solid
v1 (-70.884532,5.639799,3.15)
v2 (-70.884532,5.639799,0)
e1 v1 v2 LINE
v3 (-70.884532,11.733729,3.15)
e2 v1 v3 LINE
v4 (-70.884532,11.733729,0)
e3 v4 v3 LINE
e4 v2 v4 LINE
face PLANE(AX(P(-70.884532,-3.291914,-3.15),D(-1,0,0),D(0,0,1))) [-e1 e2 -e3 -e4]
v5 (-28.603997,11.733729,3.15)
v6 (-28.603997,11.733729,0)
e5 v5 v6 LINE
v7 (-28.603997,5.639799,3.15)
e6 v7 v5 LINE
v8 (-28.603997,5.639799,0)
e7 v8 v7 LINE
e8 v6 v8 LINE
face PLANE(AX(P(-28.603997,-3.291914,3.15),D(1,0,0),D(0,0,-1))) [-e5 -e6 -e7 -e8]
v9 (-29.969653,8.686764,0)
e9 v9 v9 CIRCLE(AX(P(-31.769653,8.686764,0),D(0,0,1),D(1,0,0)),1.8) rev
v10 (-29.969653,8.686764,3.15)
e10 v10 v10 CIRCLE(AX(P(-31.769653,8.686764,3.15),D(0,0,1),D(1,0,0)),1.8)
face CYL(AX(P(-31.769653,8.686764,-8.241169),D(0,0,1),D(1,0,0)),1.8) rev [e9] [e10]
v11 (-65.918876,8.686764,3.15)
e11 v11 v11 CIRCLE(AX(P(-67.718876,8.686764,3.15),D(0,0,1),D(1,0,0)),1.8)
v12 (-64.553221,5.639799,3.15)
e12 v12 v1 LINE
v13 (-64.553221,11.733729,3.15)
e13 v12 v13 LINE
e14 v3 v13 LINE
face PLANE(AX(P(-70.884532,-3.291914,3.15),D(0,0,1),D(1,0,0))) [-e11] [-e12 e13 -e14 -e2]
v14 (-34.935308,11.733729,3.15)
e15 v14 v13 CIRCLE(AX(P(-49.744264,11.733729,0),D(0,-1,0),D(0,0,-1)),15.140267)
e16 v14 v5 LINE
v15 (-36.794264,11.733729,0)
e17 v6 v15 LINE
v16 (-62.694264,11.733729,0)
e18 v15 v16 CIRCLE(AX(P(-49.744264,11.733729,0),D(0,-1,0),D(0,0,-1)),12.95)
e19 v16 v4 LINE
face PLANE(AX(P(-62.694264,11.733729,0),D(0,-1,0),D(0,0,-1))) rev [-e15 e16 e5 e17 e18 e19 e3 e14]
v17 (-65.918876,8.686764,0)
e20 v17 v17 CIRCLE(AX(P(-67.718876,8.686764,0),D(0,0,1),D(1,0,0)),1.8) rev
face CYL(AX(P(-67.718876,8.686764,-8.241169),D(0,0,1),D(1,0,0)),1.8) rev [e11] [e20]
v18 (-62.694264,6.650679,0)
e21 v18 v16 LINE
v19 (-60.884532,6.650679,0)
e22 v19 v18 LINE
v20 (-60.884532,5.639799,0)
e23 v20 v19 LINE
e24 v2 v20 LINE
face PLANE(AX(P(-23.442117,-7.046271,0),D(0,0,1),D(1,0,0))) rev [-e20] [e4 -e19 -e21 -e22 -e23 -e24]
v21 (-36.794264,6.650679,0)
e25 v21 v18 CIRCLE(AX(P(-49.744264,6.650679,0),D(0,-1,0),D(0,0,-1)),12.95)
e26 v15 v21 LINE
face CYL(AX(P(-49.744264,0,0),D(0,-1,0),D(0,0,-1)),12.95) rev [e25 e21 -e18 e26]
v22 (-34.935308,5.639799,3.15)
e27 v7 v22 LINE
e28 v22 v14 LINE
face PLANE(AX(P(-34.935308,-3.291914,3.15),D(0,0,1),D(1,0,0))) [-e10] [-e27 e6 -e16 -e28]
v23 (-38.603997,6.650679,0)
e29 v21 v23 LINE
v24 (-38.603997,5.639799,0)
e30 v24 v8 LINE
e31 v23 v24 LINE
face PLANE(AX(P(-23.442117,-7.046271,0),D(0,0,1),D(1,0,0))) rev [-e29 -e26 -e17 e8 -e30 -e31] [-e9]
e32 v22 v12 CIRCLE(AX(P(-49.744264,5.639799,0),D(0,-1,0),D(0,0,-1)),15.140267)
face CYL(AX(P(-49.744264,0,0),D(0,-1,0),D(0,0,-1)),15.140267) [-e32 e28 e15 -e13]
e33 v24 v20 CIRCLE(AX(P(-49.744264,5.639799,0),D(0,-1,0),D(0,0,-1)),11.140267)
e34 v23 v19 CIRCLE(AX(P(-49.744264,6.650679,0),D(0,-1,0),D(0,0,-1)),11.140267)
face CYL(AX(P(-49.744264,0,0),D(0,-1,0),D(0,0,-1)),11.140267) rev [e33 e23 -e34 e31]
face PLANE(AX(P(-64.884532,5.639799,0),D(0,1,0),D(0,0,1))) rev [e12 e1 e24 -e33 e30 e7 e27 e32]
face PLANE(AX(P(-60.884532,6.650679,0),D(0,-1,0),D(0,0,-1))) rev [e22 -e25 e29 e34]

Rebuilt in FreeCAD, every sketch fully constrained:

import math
import FreeCAD as App
import Part
import Sketcher

doc = App.newDocument("Part")
body = doc.addObject("PartDesign::Body", "Body")
body.AllowCompound = True

sketch1 = doc.addObject("Sketcher::SketchObject", "Sketch")
body.addObject(sketch1)
sketch1.AttachmentSupport = (doc.XY_Plane, [""])
sketch1.MapMode = "FlatFace"
sketch1.addGeometry([
    Part.LineSegment(App.Vector(-62.7, 11.7, 0), App.Vector(-64.9, 11.7, 0)),
    Part.LineSegment(App.Vector(-64.9, 11.7, 0), App.Vector(-64.9, 5.6, 0)),
    Part.LineSegment(App.Vector(-64.9, 5.6, 0), App.Vector(-60.9, 5.6, 0)),
    Part.LineSegment(App.Vector(-60.9, 5.6, 0), App.Vector(-60.9, 6.7, 0)),
    Part.LineSegment(App.Vector(-60.9, 6.7, 0), App.Vector(-62.7, 6.7, 0)),
    Part.LineSegment(App.Vector(-62.7, 6.7, 0), App.Vector(-62.7, 11.7, 0)),
], False)
sketch1.addGeometry(Part.LineSegment(App.Vector(-49.7, 5.6, 0), App.Vector(-49.7, 11.7, 0)), True)
sketch1.addConstraint([
    Sketcher.Constraint("Coincident", 0, 2, 1, 1),
    Sketcher.Constraint("Coincident", 1, 2, 2, 1),
    Sketcher.Constraint("Coincident", 2, 2, 3, 1),
    Sketcher.Constraint("Coincident", 3, 2, 4, 1),
    Sketcher.Constraint("Coincident", 4, 2, 5, 1),
    Sketcher.Constraint("Coincident", 5, 2, 0, 1),
    Sketcher.Constraint("Horizontal", 0),
    Sketcher.Constraint("Vertical", 1),
    Sketcher.Constraint("Horizontal", 2),
    Sketcher.Constraint("Vertical", 3),
    Sketcher.Constraint("Horizontal", 4),
    Sketcher.Constraint("Vertical", 5),
    Sketcher.Constraint("Vertical", 6),
    Sketcher.Constraint("Horizontal", 2, 2, 6, 1),
    Sketcher.Constraint("Horizontal", 5, 2, 6, 2),
    Sketcher.Constraint("DistanceX", 2, 1, 2, 2, 4.0),
    Sketcher.Constraint("DistanceX", 4, 2, 6, 1, 12.95),
    Sketcher.Constraint("DistanceY", 1, 2, 1, 1, 6.09393),
    Sketcher.Constraint("DistanceY", 3, 1, 3, 2, 1.01088),
    Sketcher.Constraint("DistanceY", -1, 1, 1, 2, 5.639799),
    Sketcher.Constraint("DistanceX", 0, 2, 0, 1, 2.190267),
    Sketcher.Constraint("DistanceX", 0, 2, -1, 1, 64.884532),
])
revolution = doc.addObject("PartDesign::Revolution", "Revolution")
body.addObject(revolution)
revolution.Profile = sketch1
revolution.ReferenceAxis = (sketch1, ["Axis0"])
revolution.Angle = 360

sketch2 = doc.addObject("Sketcher::SketchObject", "Sketch001")
body.addObject(sketch2)
sketch2.AttachmentSupport = (doc.XZ_Plane, [""])
sketch2.MapMode = "FlatFace"
sketch2.AttachmentOffset = App.Placement(App.Vector(0, 0, -11.733729), App.Rotation())
sketch2.addGeometry([
    Part.LineSegment(App.Vector(-50.2, -15.1, 0), App.Vector(-50.2, -12.9, 0)),
    Part.ArcOfCircle(Part.Circle(App.Vector(-49.7, 0, 0), App.Vector(0, 0, 1), 12.9), math.radians(-92.21), math.radians(-87.79)),
    Part.LineSegment(App.Vector(-49.2, -12.9, 0), App.Vector(-49.2, -15.1, 0)),
    Part.ArcOfCircle(Part.Circle(App.Vector(-49.7, 0, 0), App.Vector(0, 0, 1), 15.1), math.radians(-91.89), math.radians(-88.11)),
], False)
sketch2.addConstraint([
    Sketcher.Constraint("Coincident", 0, 2, 1, 1),
    Sketcher.Constraint("Coincident", 1, 2, 2, 1),
    Sketcher.Constraint("Coincident", 2, 2, 3, 2),
    Sketcher.Constraint("Coincident", 3, 1, 0, 1),
    Sketcher.Constraint("Vertical", 0),
    Sketcher.Constraint("Vertical", 2),
    Sketcher.Constraint("Coincident", 3, 3, 1, 3),
    Sketcher.Constraint("PointOnObject", 1, 3, -1),
    Sketcher.Constraint("Horizontal", 0, 2, 1, 2),
    Sketcher.Constraint("Radius", 1, 12.95),
    Sketcher.Constraint("DistanceX", 0, 2, 1, 2, 1.0),
    Sketcher.Constraint("Radius", 3, 15.140268),
    Sketcher.Constraint("DistanceX", 1, 3, -1, 1, 49.744264),
])
pad1 = doc.addObject("PartDesign::Pad", "Pad")
body.addObject(pad1)
pad1.Profile = sketch2
pad1.Length = 5
pad1.Reversed = True

sketch3 = doc.addObject("Sketcher::SketchObject", "Sketch002")
body.addObject(sketch3)
sketch3.AttachmentSupport = (doc.XZ_Plane, [""])
sketch3.MapMode = "FlatFace"
sketch3.AttachmentOffset = App.Placement(App.Vector(0, 0, -16.733729), App.Rotation())
sketch3.addGeometry([
    Part.LineSegment(App.Vector(-50.2, -15.1, 0), App.Vector(-50.2, 4.6, 0)),
    Part.LineSegment(App.Vector(-50.2, 4.6, 0), App.Vector(-49.2, 4.6, 0)),
    Part.LineSegment(App.Vector(-49.2, 4.6, 0), App.Vector(-49.2, -15.1, 0)),
    Part.ArcOfCircle(Part.Circle(App.Vector(-49.7, 0, 0), App.Vector(0, 0, 1), 15.1), math.radians(-91.89), math.radians(-88.11)),
], False)
sketch3.addConstraint([
    Sketcher.Constraint("Coincident", 0, 2, 1, 1),
    Sketcher.Constraint("Coincident", 1, 2, 2, 1),
    Sketcher.Constraint("Coincident", 2, 2, 3, 2),
    Sketcher.Constraint("Coincident", 3, 1, 0, 1),
    Sketcher.Constraint("Vertical", 0),
    Sketcher.Constraint("Horizontal", 1),
    Sketcher.Constraint("Vertical", 2),
    Sketcher.Constraint("PointOnObject", 3, 3, -1),
    Sketcher.Constraint("Horizontal", 2, 2, 3, 1),
    Sketcher.Constraint("DistanceX", 1, 1, 1, 2, 1.0),
    Sketcher.Constraint("Radius", 3, 15.140268),
    Sketcher.Constraint("DistanceY", 0, 1, 0, 2, 19.691665),
    Sketcher.Constraint("DistanceX", 3, 3, -1, 1, 49.744264),
])
pad2 = doc.addObject("PartDesign::Pad", "Pad001")
body.addObject(pad2)
pad2.Profile = sketch3
pad2.Length = 3

sketch4 = doc.addObject("Sketcher::SketchObject", "Sketch003")
body.addObject(sketch4)
sketch4.AttachmentSupport = (doc.XZ_Plane, [""])
sketch4.MapMode = "FlatFace"
sketch4.AttachmentOffset = App.Placement(App.Vector(0, 0, -11.733729), App.Rotation())
sketch4.addGeometry([
    Part.LineSegment(App.Vector(-54.5, -39.4, 0), App.Vector(-54.5, -14.4, 0)),
    Part.ArcOfCircle(Part.Circle(App.Vector(-49.7, 0, 0), App.Vector(0, 0, 1), 15.1), math.radians(-108.28), math.radians(-91.89)),
    Part.ArcOfCircle(Part.Circle(App.Vector(-49.7, 0, 0), App.Vector(0, 0, 1), 15.1), math.radians(-91.89), math.radians(-88.11)),
    Part.ArcOfCircle(Part.Circle(App.Vector(-49.7, 0, 0), App.Vector(0, 0, 1), 15.1), math.radians(-88.11), math.radians(-71.72)),
    Part.LineSegment(App.Vector(-45, -14.4, 0), App.Vector(-45, -39.4, 0)),
    Part.LineSegment(App.Vector(-45, -39.4, 0), App.Vector(-54.5, -39.4, 0)),
], False)
sketch4.addConstraint([
    Sketcher.Constraint("Coincident", 0, 2, 1, 1),
    Sketcher.Constraint("Tangent", 1, 2, 2, 1),
    Sketcher.Constraint("Tangent", 2, 2, 3, 1),
    Sketcher.Constraint("Coincident", 3, 2, 4, 1),
    Sketcher.Constraint("Coincident", 4, 2, 5, 1),
    Sketcher.Constraint("Coincident", 5, 2, 0, 1),
    Sketcher.Constraint("Vertical", 0),
    Sketcher.Constraint("Vertical", 4),
    Sketcher.Constraint("Horizontal", 5),
    Sketcher.Constraint("Coincident", 3, 3, 1, 3),
    Sketcher.Constraint("PointOnObject", 1, 3, -1),
    Sketcher.Constraint("Horizontal", 1, 2, 2, 2),
    Sketcher.Constraint("Horizontal", 0, 2, 3, 2),
    Sketcher.Constraint("DistanceY", 0, 1, 0, 2, 25.0),
    Sketcher.Constraint("DistanceX", 5, 2, 5, 1, 9.5),
    Sketcher.Constraint("DistanceX", 1, 2, 2, 2, 1.0),
    Sketcher.Constraint("Radius", 1, 15.140267),
    Sketcher.Constraint("DistanceX", 1, 3, -1, 1, 49.744264),
])
pad3 = doc.addObject("PartDesign::Pad", "Pad002")
body.addObject(pad3)
pad3.Profile = sketch4
pad3.Length = 3

sketch5 = doc.addObject("Sketcher::SketchObject", "Sketch004")
body.addObject(sketch5)
sketch5.AttachmentSupport = (doc.XZ_Plane, [""])
sketch5.MapMode = "FlatFace"
sketch5.AttachmentOffset = App.Placement(App.Vector(0, 0, -8.733729), App.Rotation())
sketch5.addGeometry([
    Part.LineSegment(App.Vector(-54, -34, 0), App.Vector(-54, -39, 0)),
    Part.LineSegment(App.Vector(-54, -39, 0), App.Vector(-45, -39, 0)),
    Part.LineSegment(App.Vector(-45, -39, 0), App.Vector(-45, -34, 0)),
    Part.LineSegment(App.Vector(-45, -34, 0), App.Vector(-54, -34, 0)),
], False)
sketch5.addConstraint([
    Sketcher.Constraint("Coincident", 0, 2, 1, 1),
    Sketcher.Constraint("Coincident", 1, 2, 2, 1),
    Sketcher.Constraint("Coincident", 2, 2, 3, 1),
    Sketcher.Constraint("Coincident", 3, 2, 0, 1),
    Sketcher.Constraint("Vertical", 0),
    Sketcher.Constraint("Horizontal", 1),
    Sketcher.Constraint("Vertical", 2),
    Sketcher.Constraint("Horizontal", 3),
    Sketcher.Constraint("DistanceY", 0, 2, 0, 1, 5.0),
    Sketcher.Constraint("DistanceX", 1, 1, 1, 2, 9.5),
    Sketcher.Constraint("DistanceX", 0, 2, -1, 1, 54.494264),
    Sketcher.Constraint("DistanceY", 0, 2, -1, 1, 39.375855),
])
pad4 = doc.addObject("PartDesign::Pad", "Pad003")
body.addObject(pad4)
pad4.Profile = sketch5
pad4.Length = 15.78

sketch6 = doc.addObject("Sketcher::SketchObject", "Sketch005")
body.addObject(sketch6)
sketch6.AttachmentSupport = (doc.XY_Plane, [""])
sketch6.MapMode = "FlatFace"
sketch6.AttachmentOffset = App.Placement(App.Vector(0, 0, -39.375855), App.Rotation())
sketch6.addGeometry([
    Part.LineSegment(App.Vector(-45, -5, 0), App.Vector(-45, -7, 0)),
    Part.LineSegment(App.Vector(-45, -7, 0), App.Vector(-54.5, -7, 0)),
    Part.LineSegment(App.Vector(-54.5, -7, 0), App.Vector(-54.5, -5, 0)),
    Part.LineSegment(App.Vector(-54.5, -5, 0), App.Vector(-45, -5, 0)),
], False)
sketch6.addConstraint([
    Sketcher.Constraint("Coincident", 0, 2, 1, 1),
    Sketcher.Constraint("Coincident", 1, 2, 2, 1),
    Sketcher.Constraint("Coincident", 2, 2, 3, 1),
    Sketcher.Constraint("Coincident", 3, 2, 0, 1),
    Sketcher.Constraint("Vertical", 0),
    Sketcher.Constraint("Horizontal", 1),
    Sketcher.Constraint("Vertical", 2),
    Sketcher.Constraint("Horizontal", 3),
    Sketcher.Constraint("DistanceY", 0, 2, 0, 1, 2.0),
    Sketcher.Constraint("DistanceX", 1, 2, 1, 1, 9.5),
    Sketcher.Constraint("DistanceY", 0, 2, -1, 1, 7.046271),
    Sketcher.Constraint("DistanceX", 0, 2, -1, 1, 44.994264),
])
pad5 = doc.addObject("PartDesign::Pad", "Pad004")
body.addObject(pad5)
pad5.Profile = sketch6
pad5.Length = 40
pad5.Reversed = True

sketch7 = doc.addObject("Sketcher::SketchObject", "Sketch006")
body.addObject(sketch7)
sketch7.AttachmentSupport = (doc.XZ_Plane, [""])
sketch7.MapMode = "FlatFace"
sketch7.AttachmentOffset = App.Placement(App.Vector(0, 0, -11.733729), App.Rotation())
sketch7.addGeometry([
    Part.LineSegment(App.Vector(-29, -3, 0), App.Vector(-35, -3, 0)),
    Part.ArcOfCircle(Part.Circle(App.Vector(-50, 0, 0), App.Vector(0, 0, 1), 15), math.radians(-12), math.radians(12)),
    Part.LineSegment(App.Vector(-35, 3, 0), App.Vector(-29, 3, 0)),
    Part.LineSegment(App.Vector(-29, 3, 0), App.Vector(-29, -3, 0)),
    Part.LineSegment(App.Vector(-71, -3, 0), App.Vector(-71, 3, 0)),
    Part.LineSegment(App.Vector(-71, 3, 0), App.Vector(-65, 3, 0)),
    Part.ArcOfCircle(Part.Circle(App.Vector(-50, 0, 0), App.Vector(0, 0, 1), 15), math.radians(168), math.radians(192)),
    Part.LineSegment(App.Vector(-65, -3, 0), App.Vector(-71, -3, 0)),
], False)
sketch7.addConstraint([
    Sketcher.Constraint("Coincident", 0, 2, 1, 1),
    Sketcher.Constraint("Coincident", 1, 2, 2, 1),
    Sketcher.Constraint("Coincident", 2, 2, 3, 1),
    Sketcher.Constraint("Coincident", 3, 2, 0, 1),
    Sketcher.Constraint("Coincident", 4, 2, 5, 1),
    Sketcher.Constraint("Coincident", 5, 2, 6, 1),
    Sketcher.Constraint("Coincident", 6, 2, 7, 1),
    Sketcher.Constraint("Coincident", 7, 2, 4, 1),
    Sketcher.Constraint("Horizontal", 0),
    Sketcher.Constraint("Horizontal", 2),
    Sketcher.Constraint("Vertical", 3),
    Sketcher.Constraint("Vertical", 4),
    Sketcher.Constraint("Horizontal", 5),
    Sketcher.Constraint("Horizontal", 7),
    Sketcher.Constraint("Coincident", 6, 3, 1, 3),
    Sketcher.Constraint("Equal", 1, 6),
    Sketcher.Constraint("Symmetric", 0, 2, 1, 2, -1),
    Sketcher.Constraint("Horizontal", 2, 2, 4, 2),
    Sketcher.Constraint("Horizontal", 3, 2, 6, 2),
    Sketcher.Constraint("Equal", 2, 5),
    Sketcher.Constraint("DistanceY", 3, 2, 3, 1, 6.3),
    Sketcher.Constraint("Radius", 1, 15.140267),
    Sketcher.Constraint("DistanceX", 0, 2, 0, 1, 6.331311),
    Sketcher.Constraint("DistanceX", 4, 2, -1, 1, 70.884532),
])
pad6 = doc.addObject("PartDesign::Pad", "Pad005")
body.addObject(pad6)
pad6.Profile = sketch7
pad6.Length = 6.09393

sketch8 = doc.addObject("Sketcher::SketchObject", "Sketch007")
body.addObject(sketch8)
sketch8.AttachmentSupport = (doc.XY_Plane, [""])
sketch8.MapMode = "FlatFace"
sketch8.AttachmentOffset = App.Placement(App.Vector(0, 0, 3.15), App.Rotation())
sketch8.addGeometry([
    Part.Circle(App.Vector(-31.8, 8.7, 0), App.Vector(0, 0, 1), 1.8),
    Part.Circle(App.Vector(-67.7, 8.7, 0), App.Vector(0, 0, 1), 1.8),
], False)
sketch8.addConstraint([
    Sketcher.Constraint("Equal", 0, 1),
    Sketcher.Constraint("Horizontal", 0, 3, 1, 3),
    Sketcher.Constraint("Diameter", 0, 3.6),
    Sketcher.Constraint("DistanceX", 0, 3, -1, 1, 31.769653),
    Sketcher.Constraint("DistanceY", -1, 1, 0, 3, 8.686764),
    Sketcher.Constraint("DistanceX", 1, 3, -1, 1, 67.718876),
])
pocket1 = doc.addObject("PartDesign::Pocket", "Pocket")
body.addObject(pocket1)
pocket1.Profile = sketch8
pocket1.Length = 6.3

sketch9 = doc.addObject("Sketcher::SketchObject", "Sketch008")
body.addObject(sketch9)
sketch9.AttachmentSupport = (doc.XZ_Plane, [""])
sketch9.MapMode = "FlatFace"
sketch9.AttachmentOffset = App.Placement(App.Vector(0, 0, -11.733729), App.Rotation())
sketch9.addGeometry([
    Part.LineSegment(App.Vector(-75, -86, 0), App.Vector(-75, 0, 0)),
    Part.LineSegment(App.Vector(-75, 0, 0), App.Vector(-23, 0, 0)),
    Part.LineSegment(App.Vector(-23, 0, 0), App.Vector(-23, -86, 0)),
    Part.LineSegment(App.Vector(-23, -86, 0), App.Vector(-75, -86, 0)),
], False)
sketch9.addConstraint([
    Sketcher.Constraint("Coincident", 0, 2, 1, 1),
    Sketcher.Constraint("Coincident", 1, 2, 2, 1),
    Sketcher.Constraint("Coincident", 2, 2, 3, 1),
    Sketcher.Constraint("Coincident", 3, 2, 0, 1),
    Sketcher.Constraint("Vertical", 0),
    Sketcher.Constraint("Horizontal", 1),
    Sketcher.Constraint("Vertical", 2),
    Sketcher.Constraint("Horizontal", 3),
    Sketcher.Constraint("PointOnObject", 0, 2, -1),
    Sketcher.Constraint("DistanceX", 1, 1, 1, 2, 51.153218),
    Sketcher.Constraint("DistanceY", 0, 1, 0, 2, 86.050623),
    Sketcher.Constraint("DistanceX", 0, 2, -1, 1, 74.595335),
])
pocket2 = doc.addObject("PartDesign::Pocket", "Pocket001")
body.addObject(pocket2)
pocket2.Profile = sketch9
pocket2.Type = "ThroughAll"
pocket2.Midplane = True

sketch10 = doc.addObject("Sketcher::SketchObject", "Sketch009")
body.addObject(sketch10)
sketch10.AttachmentSupport = (doc.XZ_Plane, [""])
sketch10.MapMode = "FlatFace"
sketch10.addGeometry([
    Part.LineSegment(App.Vector(-55, -5, 0), App.Vector(-55, 6, 0)),
    Part.LineSegment(App.Vector(-55, 6, 0), App.Vector(-45, 6, 0)),
    Part.LineSegment(App.Vector(-45, 6, 0), App.Vector(-45, -5, 0)),
    Part.LineSegment(App.Vector(-45, -5, 0), App.Vector(-55, -5, 0)),
], False)
sketch10.addConstraint([
    Sketcher.Constraint("Coincident", 0, 2, 1, 1),
    Sketcher.Constraint("Coincident", 1, 2, 2, 1),
    Sketcher.Constraint("Coincident", 2, 2, 3, 1),
    Sketcher.Constraint("Coincident", 3, 2, 0, 1),
    Sketcher.Constraint("Vertical", 0),
    Sketcher.Constraint("Horizontal", 1),
    Sketcher.Constraint("Vertical", 2),
    Sketcher.Constraint("Horizontal", 3),
    Sketcher.Constraint("DistanceX", 1, 1, 1, 2, 9.60397),
    Sketcher.Constraint("DistanceX", 0, 2, -1, 1, 54.888301),
    Sketcher.Constraint("DistanceY", 0, 1, 0, 2, 11.884913),
    Sketcher.Constraint("DistanceY", -1, 1, 0, 2, 6.467487),
])
pocket3 = doc.addObject("PartDesign::Pocket", "Pocket002")
body.addObject(pocket3)
pocket3.Profile = sketch10
pocket3.Type = "ThroughAll"

doc.recompute()
